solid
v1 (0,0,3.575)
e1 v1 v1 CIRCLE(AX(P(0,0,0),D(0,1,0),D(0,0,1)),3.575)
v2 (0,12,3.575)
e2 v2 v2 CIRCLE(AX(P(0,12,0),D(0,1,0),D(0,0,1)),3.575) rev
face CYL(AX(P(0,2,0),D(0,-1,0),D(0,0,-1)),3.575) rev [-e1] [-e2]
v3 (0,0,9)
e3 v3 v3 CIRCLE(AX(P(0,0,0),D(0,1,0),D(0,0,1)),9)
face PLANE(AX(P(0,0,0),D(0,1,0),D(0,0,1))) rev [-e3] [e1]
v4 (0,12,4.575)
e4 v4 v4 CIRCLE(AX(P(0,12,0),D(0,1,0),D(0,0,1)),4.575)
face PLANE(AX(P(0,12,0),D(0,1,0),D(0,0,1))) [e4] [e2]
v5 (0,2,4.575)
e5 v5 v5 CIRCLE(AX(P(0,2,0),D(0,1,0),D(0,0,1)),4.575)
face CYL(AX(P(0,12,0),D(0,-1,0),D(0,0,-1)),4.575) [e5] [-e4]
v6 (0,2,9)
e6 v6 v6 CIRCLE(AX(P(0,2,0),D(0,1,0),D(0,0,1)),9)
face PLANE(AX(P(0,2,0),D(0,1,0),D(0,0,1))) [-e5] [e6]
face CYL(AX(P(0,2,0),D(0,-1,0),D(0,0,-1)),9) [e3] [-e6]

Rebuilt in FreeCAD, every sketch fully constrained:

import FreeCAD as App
import Part
import Sketcher
from FreeCAD import Vector
Q = App.Units.Quantity

doc = App.newDocument("Part")
body = doc.addObject("PartDesign::Body", "Body")

# Sketch on XZ plane
sketch1 = doc.addObject("Sketcher::SketchObject", "Sketch")
body.addObject(sketch1)
sketch1.AttachmentSupport = (doc.XZ_Plane, [""])
sketch1.MapMode = "FlatFace"
sketch1.addGeometry([
    Part.Circle(Vector(0, 0, 0), Vector(0, 0, 1), 9),
    Part.Circle(Vector(0, 0, 0), Vector(0, 0, 1), 3.6),
], False)
sketch1.addConstraint([
    Sketcher.Constraint("Coincident", 0, 3, -1, 1),
    Sketcher.Constraint("Coincident", 1, 3, -1, 1),
    Sketcher.Constraint("Diameter", 0, Q("18 mm")),
    Sketcher.Constraint("Diameter", 1, Q("7.15 mm")),
])
pad1 = doc.addObject("PartDesign::Pad", "Pad")
body.addObject(pad1)
pad1.Profile = sketch1
pad1.Length = 2
pad1.Reversed = True

# Sketch on XZ plane
sketch2 = doc.addObject("Sketcher::SketchObject", "Sketch001")
body.addObject(sketch2)
sketch2.AttachmentSupport = (doc.XZ_Plane, [""])
sketch2.MapMode = "FlatFace"
sketch2.AttachmentOffset = App.Placement(Vector(0, 0, -2), App.Rotation())
sketch2.addGeometry([
    Part.Circle(Vector(0, 0, 0), Vector(0, 0, 1), 4.6),
    Part.Circle(Vector(0, 0, 0), Vector(0, 0, 1), 3.6),
], False)
sketch2.addConstraint([
    Sketcher.Constraint("Coincident", 0, 3, -1, 1),
    Sketcher.Constraint("Coincident", 1, 3, -1, 1),
    Sketcher.Constraint("Diameter", 0, Q("9.15 mm")),
    Sketcher.Constraint("Diameter", 1, Q("7.15 mm")),
])
pad2 = doc.addObject("PartDesign::Pad", "Pad001")
body.addObject(pad2)
pad2.Profile = sketch2
pad2.Length = 10
pad2.Reversed = True

doc.recompute()
